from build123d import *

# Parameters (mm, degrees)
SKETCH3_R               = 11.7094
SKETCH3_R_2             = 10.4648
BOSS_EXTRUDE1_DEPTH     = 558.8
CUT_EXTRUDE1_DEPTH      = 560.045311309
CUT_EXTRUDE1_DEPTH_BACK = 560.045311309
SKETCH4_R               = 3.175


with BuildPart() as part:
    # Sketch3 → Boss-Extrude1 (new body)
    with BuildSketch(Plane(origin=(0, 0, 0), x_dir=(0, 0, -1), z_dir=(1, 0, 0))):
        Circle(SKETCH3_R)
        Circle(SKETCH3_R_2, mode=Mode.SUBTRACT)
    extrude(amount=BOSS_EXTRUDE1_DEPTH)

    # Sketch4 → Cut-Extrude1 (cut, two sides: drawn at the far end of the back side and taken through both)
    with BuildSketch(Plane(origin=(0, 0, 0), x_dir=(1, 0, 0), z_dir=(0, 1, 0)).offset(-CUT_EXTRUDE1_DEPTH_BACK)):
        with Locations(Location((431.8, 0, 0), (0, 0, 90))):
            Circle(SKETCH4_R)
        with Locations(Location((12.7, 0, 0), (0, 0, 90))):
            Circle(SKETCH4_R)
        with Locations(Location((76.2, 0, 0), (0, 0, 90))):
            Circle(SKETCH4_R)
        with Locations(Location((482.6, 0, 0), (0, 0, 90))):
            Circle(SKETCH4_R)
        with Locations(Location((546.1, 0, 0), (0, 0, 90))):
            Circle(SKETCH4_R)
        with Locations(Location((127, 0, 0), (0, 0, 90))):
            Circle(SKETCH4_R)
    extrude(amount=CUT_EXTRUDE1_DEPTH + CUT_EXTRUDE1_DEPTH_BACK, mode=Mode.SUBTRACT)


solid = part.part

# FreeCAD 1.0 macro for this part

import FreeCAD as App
import Part
import Sketcher

V = App.Vector
Q = App.Units.Quantity

doc = App.newDocument("Part")
body = doc.addObject("PartDesign::Body", "Body")

# Sketch on YZ plane
sketch1 = doc.addObject("Sketcher::SketchObject", "Sketch")
body.addObject(sketch1)
sketch1.AttachmentSupport = (doc.YZ_Plane, [""])
sketch1.MapMode = "FlatFace"
sketch1.addGeometry([
    Part.Circle(V(0, 0, 0), V(0, 0, 1), 11.7094),
    Part.Circle(V(0, 0, 0), V(0, 0, 1), 10.4648),
], False)
sketch1.addConstraint([
    Sketcher.Constraint("Coincident", 0, 3, -1, 1),
    Sketcher.Constraint("Coincident", 1, 3, -1, 1),
    Sketcher.Constraint("Diameter", 0, Q("0.922 in")),
    Sketcher.Constraint("Diameter", 1, Q("0.824 in")),
])
pad1 = doc.addObject("PartDesign::Pad", "Pad")
body.addObject(pad1)
pad1.Profile = sketch1
pad1.Length = Q("22 in")

# Sketch on XZ plane
sketch2 = doc.addObject("Sketcher::SketchObject", "Sketch001")
body.addObject(sketch2)
sketch2.AttachmentSupport = (doc.XZ_Plane, [""])
sketch2.MapMode = "FlatFace"
sketch2.addGeometry([
    Part.Circle(V(431.8, 0, 0), V(0, 0, 1), 3.175),  # 0
    Part.Circle(V(12.7, 0, 0), V(0, 0, 1), 3.175),  # 1
    Part.Circle(V(76.2, 0, 0), V(0, 0, 1), 3.175),  # 2
    Part.Circle(V(482.6, 0, 0), V(0, 0, 1), 3.175),  # 3
    Part.Circle(V(546.1, 0, 0), V(0, 0, 1), 3.175),  # 4
    Part.Circle(V(127, 0, 0), V(0, 0, 1), 3.175),  # 5
], False)
sketch2.addConstraint([
    Sketcher.Constraint("Equal", 0, 1),
    Sketcher.Constraint("Equal", 1, 2),
    Sketcher.Constraint("Equal", 2, 3),
    Sketcher.Constraint("Equal", 3, 4),
    Sketcher.Constraint("Equal", 4, 5),
    Sketcher.Constraint("PointOnObject", 0, 3, -1),
    Sketcher.Constraint("PointOnObject", 1, 3, -1),
    Sketcher.Constraint("PointOnObject", 2, 3, -1),
    Sketcher.Constraint("PointOnObject", 3, 3, -1),
    Sketcher.Constraint("PointOnObject", 4, 3, -1),
    Sketcher.Constraint("PointOnObject", 5, 3, -1),
    Sketcher.Constraint("Diameter", 0, Q("0.25 in")),
    Sketcher.Constraint("DistanceX", -1, 1, 0, 3, Q("17 in")),
    Sketcher.Constraint("DistanceX", -1, 1, 2, 3, Q("3 in")),
    Sketcher.Constraint("DistanceX", -1, 1, 3, 3, Q("19 in")),
    Sketcher.Constraint("DistanceX", -1, 1, 5, 3, Q("5 in")),
    Sketcher.Constraint("DistanceX", 1, 3, 4, 3, Q("21 in")),
    Sketcher.Constraint("DistanceX", -1, 1, 1, 3, Q("0.5 in")),
])
pocket1 = doc.addObject("PartDesign::Pocket", "Pocket")
body.addObject(pocket1)
pocket1.Profile = sketch2
pocket1.Type = "ThroughAll"
pocket1.Midplane = True

doc.recompute()
